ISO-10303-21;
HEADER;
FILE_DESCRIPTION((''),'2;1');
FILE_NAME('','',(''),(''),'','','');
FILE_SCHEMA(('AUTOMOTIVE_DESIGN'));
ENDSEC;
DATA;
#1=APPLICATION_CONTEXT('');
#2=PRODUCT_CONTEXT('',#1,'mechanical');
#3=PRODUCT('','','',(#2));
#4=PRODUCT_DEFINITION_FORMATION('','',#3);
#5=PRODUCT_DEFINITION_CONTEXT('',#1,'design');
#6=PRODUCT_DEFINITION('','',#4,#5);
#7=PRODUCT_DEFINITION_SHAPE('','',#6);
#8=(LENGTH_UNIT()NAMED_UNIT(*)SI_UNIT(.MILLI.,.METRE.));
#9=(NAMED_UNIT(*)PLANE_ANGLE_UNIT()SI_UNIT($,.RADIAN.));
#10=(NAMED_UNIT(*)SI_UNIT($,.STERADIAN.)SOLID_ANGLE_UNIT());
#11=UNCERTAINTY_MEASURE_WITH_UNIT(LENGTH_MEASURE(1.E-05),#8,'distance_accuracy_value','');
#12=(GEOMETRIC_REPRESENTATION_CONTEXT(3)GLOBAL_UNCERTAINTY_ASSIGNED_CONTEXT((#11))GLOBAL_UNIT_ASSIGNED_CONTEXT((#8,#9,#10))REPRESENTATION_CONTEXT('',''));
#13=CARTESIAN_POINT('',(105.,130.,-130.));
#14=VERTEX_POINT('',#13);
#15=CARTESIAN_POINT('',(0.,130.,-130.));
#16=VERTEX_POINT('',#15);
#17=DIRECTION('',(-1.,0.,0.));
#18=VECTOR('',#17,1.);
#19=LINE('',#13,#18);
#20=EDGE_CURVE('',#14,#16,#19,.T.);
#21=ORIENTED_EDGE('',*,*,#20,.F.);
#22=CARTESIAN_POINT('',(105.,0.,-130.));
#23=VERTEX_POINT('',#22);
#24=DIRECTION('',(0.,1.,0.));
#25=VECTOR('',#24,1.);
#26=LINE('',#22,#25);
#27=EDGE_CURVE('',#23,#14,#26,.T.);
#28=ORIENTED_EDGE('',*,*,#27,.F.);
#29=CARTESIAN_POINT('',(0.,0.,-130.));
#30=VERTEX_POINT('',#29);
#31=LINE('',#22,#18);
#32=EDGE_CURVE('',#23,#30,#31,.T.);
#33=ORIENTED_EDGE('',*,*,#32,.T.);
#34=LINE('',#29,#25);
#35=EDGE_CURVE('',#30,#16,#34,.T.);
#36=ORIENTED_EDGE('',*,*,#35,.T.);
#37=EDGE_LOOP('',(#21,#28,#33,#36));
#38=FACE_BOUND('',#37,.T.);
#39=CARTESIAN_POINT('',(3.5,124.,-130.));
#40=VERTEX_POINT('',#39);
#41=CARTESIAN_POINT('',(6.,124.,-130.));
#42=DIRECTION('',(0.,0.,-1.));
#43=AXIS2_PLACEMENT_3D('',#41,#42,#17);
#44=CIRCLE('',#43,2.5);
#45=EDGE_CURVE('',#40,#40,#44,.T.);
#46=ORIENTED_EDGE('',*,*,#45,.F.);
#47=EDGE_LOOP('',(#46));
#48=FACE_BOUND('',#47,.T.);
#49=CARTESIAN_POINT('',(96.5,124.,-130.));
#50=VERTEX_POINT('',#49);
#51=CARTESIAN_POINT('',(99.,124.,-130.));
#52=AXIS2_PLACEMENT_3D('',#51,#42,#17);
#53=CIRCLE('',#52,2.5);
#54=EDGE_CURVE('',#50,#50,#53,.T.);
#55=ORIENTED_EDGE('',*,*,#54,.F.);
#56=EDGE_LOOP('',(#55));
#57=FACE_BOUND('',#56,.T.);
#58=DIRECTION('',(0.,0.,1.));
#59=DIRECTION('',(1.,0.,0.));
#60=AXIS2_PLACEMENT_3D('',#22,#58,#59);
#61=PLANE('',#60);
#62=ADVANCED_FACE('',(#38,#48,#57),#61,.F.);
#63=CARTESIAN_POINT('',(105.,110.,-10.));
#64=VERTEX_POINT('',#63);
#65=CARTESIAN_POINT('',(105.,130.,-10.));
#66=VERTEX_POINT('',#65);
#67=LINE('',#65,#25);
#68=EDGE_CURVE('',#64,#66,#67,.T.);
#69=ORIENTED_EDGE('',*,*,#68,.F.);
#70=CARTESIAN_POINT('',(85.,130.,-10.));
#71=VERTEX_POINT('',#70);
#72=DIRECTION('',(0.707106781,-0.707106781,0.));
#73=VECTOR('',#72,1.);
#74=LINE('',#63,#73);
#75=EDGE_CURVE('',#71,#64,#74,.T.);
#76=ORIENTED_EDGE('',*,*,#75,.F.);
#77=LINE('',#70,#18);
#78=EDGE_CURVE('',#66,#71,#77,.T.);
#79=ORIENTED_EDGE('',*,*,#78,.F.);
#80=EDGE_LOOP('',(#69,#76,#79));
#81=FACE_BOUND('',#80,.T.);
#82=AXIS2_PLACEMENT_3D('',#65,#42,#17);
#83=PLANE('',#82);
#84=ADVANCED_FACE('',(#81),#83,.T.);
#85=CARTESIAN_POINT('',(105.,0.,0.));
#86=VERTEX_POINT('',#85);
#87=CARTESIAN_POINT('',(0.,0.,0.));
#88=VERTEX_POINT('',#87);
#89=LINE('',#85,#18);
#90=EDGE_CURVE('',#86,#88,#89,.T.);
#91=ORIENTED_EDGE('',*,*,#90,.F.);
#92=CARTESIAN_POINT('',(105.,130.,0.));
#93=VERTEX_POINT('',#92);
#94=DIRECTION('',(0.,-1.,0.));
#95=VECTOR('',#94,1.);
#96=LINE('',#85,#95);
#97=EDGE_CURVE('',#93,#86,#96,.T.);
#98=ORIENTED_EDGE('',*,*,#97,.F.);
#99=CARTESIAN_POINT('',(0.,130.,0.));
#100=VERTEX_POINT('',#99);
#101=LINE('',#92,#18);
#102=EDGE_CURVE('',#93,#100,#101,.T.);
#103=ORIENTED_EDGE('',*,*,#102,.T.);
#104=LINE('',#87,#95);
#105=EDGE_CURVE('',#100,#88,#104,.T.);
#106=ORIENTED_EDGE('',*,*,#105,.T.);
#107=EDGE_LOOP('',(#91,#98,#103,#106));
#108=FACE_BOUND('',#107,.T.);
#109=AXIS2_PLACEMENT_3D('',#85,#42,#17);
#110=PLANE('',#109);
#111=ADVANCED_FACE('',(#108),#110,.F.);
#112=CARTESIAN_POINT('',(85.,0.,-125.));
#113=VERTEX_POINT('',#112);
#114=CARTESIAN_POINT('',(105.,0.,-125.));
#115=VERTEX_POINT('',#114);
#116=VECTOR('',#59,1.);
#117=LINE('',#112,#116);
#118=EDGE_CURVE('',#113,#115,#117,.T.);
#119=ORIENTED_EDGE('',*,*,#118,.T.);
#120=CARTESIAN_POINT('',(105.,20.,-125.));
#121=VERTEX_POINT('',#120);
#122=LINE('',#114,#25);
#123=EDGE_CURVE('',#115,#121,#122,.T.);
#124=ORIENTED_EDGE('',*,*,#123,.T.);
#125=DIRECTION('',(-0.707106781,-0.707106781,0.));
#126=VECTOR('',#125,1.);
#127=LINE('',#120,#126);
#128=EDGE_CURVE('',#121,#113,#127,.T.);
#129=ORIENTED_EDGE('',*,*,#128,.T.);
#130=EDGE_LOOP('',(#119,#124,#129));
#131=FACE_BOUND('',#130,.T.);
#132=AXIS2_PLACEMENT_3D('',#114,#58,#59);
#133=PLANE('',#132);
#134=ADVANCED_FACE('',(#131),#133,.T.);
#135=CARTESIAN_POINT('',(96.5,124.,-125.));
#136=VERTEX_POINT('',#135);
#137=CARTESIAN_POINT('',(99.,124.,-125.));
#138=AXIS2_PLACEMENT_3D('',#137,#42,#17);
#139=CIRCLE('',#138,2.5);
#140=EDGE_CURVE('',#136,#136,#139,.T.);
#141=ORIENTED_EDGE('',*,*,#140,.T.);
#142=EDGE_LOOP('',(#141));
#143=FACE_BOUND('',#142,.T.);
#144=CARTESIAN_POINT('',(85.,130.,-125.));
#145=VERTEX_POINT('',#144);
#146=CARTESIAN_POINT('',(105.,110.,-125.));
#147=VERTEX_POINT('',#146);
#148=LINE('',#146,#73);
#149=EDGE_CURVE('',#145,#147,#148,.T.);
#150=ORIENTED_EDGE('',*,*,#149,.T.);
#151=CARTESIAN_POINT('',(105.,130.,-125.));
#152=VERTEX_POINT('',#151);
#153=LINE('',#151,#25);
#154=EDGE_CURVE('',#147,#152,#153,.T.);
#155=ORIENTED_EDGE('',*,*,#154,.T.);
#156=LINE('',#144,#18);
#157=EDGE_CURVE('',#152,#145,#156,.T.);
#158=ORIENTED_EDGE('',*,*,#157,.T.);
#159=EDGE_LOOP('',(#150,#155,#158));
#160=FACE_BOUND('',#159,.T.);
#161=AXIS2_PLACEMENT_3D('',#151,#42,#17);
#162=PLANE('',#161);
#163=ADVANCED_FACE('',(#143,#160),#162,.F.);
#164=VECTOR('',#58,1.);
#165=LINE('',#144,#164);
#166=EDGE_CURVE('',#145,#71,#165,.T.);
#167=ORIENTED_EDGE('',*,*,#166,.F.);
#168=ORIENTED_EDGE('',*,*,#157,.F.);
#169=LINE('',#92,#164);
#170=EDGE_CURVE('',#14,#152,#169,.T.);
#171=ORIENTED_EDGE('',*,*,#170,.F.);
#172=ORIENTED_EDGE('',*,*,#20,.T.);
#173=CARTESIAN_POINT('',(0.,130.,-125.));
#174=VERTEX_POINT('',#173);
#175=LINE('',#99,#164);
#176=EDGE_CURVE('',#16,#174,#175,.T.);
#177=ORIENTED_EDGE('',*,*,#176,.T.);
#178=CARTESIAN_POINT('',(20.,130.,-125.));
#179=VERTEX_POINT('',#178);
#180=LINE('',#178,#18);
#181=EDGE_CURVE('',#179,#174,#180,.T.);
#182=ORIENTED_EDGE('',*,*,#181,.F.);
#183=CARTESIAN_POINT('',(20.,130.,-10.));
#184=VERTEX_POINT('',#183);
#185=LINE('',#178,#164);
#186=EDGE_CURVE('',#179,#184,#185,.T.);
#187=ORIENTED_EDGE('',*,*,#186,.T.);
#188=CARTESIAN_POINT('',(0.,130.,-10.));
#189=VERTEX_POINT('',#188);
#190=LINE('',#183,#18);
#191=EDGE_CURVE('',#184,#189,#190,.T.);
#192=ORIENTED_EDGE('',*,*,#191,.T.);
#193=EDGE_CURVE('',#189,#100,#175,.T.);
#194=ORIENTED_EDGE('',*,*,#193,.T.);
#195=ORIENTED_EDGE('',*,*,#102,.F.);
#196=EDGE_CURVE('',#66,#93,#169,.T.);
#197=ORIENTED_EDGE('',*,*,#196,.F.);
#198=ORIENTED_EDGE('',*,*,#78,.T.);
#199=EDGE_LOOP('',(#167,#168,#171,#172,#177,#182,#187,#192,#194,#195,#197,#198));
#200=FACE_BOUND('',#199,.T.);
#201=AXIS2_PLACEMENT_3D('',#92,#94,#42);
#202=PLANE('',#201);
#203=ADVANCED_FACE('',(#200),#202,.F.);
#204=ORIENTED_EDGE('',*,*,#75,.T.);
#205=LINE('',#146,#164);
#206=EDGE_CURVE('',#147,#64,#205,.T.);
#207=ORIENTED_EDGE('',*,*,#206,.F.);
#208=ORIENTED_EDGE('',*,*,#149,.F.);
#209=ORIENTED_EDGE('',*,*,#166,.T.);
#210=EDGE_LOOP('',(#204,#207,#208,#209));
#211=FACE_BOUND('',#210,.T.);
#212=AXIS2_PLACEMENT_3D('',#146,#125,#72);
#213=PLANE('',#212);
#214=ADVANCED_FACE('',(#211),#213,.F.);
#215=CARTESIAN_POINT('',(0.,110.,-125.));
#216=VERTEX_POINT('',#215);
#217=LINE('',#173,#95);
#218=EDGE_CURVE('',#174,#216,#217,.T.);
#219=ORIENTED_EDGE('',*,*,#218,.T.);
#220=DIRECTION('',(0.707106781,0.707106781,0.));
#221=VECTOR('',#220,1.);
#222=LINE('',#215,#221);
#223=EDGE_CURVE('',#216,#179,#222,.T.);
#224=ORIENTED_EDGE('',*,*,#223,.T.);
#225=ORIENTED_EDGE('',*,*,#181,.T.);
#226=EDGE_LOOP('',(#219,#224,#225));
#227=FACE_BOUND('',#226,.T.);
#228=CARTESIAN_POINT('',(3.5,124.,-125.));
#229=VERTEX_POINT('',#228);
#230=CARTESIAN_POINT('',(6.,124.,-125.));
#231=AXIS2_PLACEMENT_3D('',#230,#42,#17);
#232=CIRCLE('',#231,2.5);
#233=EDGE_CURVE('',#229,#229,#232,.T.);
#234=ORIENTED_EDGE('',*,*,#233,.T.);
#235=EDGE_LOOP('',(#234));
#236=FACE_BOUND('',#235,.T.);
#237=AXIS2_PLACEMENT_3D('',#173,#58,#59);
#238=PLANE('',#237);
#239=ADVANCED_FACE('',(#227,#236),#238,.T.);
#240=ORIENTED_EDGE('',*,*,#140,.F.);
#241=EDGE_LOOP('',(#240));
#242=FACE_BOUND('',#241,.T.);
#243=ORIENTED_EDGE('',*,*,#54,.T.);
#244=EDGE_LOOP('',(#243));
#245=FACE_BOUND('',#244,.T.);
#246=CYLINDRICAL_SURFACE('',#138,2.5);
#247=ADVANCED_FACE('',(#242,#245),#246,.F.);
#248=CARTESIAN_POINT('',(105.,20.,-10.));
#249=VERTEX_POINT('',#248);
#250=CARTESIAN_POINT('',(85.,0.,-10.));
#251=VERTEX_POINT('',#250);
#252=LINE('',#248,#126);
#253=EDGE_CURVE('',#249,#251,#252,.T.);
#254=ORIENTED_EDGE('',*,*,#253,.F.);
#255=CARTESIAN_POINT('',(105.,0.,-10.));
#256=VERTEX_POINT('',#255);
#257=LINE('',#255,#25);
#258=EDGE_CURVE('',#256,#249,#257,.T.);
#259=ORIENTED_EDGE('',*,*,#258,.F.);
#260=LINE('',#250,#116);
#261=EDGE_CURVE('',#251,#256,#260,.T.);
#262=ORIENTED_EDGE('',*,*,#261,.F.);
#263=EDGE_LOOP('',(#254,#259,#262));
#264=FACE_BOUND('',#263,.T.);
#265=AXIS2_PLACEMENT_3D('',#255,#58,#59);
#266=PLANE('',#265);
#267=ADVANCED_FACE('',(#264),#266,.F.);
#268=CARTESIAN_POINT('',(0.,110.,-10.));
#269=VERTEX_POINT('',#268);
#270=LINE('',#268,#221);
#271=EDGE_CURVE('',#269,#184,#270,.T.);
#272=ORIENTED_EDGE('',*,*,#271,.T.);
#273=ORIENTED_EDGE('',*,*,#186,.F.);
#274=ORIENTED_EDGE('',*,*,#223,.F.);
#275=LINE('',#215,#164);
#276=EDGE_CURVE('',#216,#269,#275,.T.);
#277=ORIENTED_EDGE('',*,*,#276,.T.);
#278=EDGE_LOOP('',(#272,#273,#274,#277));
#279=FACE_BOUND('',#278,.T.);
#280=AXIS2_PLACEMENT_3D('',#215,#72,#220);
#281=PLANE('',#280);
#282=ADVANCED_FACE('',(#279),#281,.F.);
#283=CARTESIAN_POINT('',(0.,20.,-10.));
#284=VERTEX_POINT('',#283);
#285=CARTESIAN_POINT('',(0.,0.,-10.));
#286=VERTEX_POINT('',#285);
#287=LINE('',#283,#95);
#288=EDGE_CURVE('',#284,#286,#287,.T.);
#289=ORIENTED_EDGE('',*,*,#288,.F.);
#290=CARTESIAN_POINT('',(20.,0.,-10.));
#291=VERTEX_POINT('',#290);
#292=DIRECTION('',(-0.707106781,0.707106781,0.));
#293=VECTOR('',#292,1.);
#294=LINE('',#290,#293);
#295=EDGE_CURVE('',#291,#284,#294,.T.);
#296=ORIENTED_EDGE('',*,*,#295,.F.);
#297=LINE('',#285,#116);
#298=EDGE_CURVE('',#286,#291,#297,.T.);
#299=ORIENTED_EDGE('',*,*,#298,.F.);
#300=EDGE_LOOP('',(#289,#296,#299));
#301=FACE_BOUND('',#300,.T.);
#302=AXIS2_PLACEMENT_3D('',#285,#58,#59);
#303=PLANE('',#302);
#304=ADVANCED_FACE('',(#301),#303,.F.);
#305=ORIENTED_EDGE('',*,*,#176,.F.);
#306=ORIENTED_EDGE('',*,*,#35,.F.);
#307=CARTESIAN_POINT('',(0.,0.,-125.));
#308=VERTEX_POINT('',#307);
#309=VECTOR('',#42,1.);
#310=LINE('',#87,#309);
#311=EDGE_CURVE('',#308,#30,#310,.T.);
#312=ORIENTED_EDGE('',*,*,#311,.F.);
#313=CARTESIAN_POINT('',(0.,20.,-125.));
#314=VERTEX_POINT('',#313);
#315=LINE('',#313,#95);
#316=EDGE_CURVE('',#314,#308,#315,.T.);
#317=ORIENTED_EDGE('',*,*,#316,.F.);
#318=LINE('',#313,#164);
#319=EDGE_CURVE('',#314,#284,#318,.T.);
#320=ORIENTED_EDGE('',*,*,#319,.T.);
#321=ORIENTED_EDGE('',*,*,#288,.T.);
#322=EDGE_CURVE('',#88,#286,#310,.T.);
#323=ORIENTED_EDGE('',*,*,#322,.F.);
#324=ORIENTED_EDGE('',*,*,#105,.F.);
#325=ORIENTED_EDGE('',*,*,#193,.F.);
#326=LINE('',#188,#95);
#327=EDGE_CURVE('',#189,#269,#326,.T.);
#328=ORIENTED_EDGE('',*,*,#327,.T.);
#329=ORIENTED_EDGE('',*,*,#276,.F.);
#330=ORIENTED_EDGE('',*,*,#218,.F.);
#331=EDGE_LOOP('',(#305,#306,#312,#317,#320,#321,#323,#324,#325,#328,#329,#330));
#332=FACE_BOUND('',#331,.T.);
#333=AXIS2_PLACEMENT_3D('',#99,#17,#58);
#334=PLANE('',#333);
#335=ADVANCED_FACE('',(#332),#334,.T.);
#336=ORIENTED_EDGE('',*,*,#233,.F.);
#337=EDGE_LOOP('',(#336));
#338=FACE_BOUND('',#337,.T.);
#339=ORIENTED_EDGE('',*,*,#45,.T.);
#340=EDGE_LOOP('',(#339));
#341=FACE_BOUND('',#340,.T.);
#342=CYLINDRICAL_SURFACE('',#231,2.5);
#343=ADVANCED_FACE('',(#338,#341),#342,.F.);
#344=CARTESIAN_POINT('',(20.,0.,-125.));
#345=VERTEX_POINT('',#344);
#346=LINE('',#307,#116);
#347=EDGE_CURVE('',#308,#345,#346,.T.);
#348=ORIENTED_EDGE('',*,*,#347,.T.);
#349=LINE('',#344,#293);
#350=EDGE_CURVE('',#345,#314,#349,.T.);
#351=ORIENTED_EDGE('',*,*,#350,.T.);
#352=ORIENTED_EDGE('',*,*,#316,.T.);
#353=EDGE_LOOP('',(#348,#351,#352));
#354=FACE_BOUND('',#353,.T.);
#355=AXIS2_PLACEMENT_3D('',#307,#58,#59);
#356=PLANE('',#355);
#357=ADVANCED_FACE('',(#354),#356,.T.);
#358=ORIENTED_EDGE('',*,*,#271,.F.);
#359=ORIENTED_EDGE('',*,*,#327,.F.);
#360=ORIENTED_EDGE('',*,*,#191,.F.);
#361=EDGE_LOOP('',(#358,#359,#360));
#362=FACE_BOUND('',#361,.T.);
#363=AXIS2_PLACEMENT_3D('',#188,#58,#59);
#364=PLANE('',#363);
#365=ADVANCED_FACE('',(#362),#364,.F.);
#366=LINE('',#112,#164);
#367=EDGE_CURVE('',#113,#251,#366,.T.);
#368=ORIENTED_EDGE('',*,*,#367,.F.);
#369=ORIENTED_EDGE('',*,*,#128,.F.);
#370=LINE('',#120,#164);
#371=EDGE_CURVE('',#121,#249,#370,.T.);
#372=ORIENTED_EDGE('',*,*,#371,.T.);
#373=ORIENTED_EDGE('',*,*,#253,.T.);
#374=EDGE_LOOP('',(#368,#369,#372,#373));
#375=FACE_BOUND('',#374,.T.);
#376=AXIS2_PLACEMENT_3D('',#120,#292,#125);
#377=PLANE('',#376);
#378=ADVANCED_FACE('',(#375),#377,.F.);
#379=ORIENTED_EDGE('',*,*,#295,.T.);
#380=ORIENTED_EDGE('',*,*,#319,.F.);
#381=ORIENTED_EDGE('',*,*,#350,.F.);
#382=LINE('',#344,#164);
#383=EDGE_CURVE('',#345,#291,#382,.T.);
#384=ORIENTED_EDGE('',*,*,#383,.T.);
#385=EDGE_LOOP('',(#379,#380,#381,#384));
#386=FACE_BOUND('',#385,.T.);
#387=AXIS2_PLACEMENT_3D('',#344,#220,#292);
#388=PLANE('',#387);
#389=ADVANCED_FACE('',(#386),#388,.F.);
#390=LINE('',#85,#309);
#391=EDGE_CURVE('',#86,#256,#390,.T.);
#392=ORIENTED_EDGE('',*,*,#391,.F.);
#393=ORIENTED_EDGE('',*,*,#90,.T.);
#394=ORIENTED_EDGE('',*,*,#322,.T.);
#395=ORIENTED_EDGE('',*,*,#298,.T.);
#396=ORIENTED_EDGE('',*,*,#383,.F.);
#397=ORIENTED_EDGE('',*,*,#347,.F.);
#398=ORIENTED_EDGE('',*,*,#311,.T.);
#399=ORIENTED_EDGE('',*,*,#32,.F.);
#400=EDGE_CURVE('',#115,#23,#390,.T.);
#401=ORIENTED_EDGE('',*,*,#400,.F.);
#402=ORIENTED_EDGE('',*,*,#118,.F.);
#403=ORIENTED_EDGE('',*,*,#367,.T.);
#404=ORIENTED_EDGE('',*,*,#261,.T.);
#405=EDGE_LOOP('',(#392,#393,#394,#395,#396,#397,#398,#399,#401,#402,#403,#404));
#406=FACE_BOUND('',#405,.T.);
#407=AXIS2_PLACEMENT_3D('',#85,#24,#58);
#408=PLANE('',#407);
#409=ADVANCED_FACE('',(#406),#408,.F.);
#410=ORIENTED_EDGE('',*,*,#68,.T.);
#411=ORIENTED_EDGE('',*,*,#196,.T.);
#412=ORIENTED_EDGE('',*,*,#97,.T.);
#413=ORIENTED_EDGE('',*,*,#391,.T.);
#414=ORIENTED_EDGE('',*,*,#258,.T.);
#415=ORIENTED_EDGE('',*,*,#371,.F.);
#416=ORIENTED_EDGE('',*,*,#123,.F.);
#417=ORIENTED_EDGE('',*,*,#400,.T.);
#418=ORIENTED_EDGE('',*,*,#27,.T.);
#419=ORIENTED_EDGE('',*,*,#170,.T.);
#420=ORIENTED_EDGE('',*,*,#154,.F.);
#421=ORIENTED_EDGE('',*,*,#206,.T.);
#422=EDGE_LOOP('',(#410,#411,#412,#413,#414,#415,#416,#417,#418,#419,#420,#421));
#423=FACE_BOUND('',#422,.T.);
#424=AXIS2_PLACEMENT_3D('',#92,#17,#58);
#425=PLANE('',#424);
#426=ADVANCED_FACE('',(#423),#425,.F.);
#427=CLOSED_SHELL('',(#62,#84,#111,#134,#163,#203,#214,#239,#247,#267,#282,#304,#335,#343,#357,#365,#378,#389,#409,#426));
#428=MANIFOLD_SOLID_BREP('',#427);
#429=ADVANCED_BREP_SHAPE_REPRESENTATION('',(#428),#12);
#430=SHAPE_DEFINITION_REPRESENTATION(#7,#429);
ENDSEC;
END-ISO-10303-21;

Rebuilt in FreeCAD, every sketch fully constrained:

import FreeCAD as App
import Part
import Sketcher
Q = App.Units.Quantity

doc = App.newDocument("Part")
body = doc.addObject("PartDesign::Body", "Body")

# Sketch on YZ plane
sketch1 = body.newObject("Sketcher::SketchObject", "Sketch")
sketch1.AttachmentSupport = (doc.getObject("YZ_Plane"), [""])
sketch1.MapMode = "FlatFace"
sketch1.addGeometry([
    Part.LineSegment(App.Vector(130, 0, 0), App.Vector(0, 0, 0)),
    Part.LineSegment(App.Vector(0, 0, 0), App.Vector(0, -130, 0)),
    Part.LineSegment(App.Vector(0, -130, 0), App.Vector(130, -130, 0)),
    Part.LineSegment(App.Vector(130, -130, 0), App.Vector(130, 0, 0)),
], False)
sketch1.addConstraint([
    Sketcher.Constraint("Coincident", 0, 2, 1, 1),
    Sketcher.Constraint("Coincident", 1, 2, 2, 1),
    Sketcher.Constraint("Coincident", 2, 2, 3, 1),
    Sketcher.Constraint("Coincident", 3, 2, 0, 1),
    Sketcher.Constraint("Horizontal", 0),
    Sketcher.Constraint("Vertical", 1),
    Sketcher.Constraint("Horizontal", 2),
    Sketcher.Constraint("Vertical", 3),
    Sketcher.Constraint("Coincident", 0, 2, -1, 1),
    Sketcher.Constraint("Equal", 2, 1),
    Sketcher.Constraint("DistanceX", 0, 2, 0, 1, Q("130 mm")),
])
pad1 = body.newObject("PartDesign::Pad", "Pad")
pad1.Profile = sketch1
pad1.Length = 105

# Sketch on XY plane
sketch2 = body.newObject("Sketcher::SketchObject", "Sketch001")
sketch2.AttachmentSupport = (doc.getObject("XY_Plane"), [""])
sketch2.MapMode = "FlatFace"
sketch2.AttachmentOffset = App.Placement(App.Vector(0, 0, -10), App.Rotation())
sketch2.addGeometry([
    Part.LineSegment(App.Vector(0, 0, 0), App.Vector(20, 0, 0)),  # 0
    Part.LineSegment(App.Vector(20, 0, 0), App.Vector(0, 20, 0)),  # 1
    Part.LineSegment(App.Vector(0, 20, 0), App.Vector(0, 0, 0)),  # 2
    Part.LineSegment(App.Vector(0, 130, 0), App.Vector(0, 110, 0)),  # 3
    Part.LineSegment(App.Vector(0, 110, 0), App.Vector(20, 130, 0)),  # 4
    Part.LineSegment(App.Vector(20, 130, 0), App.Vector(0, 130, 0)),  # 5
    Part.LineSegment(App.Vector(105, 110, 0), App.Vector(105, 130, 0)),  # 6
    Part.LineSegment(App.Vector(105, 130, 0), App.Vector(85, 130, 0)),  # 7
    Part.LineSegment(App.Vector(85, 130, 0), App.Vector(105, 110, 0)),  # 8
    Part.LineSegment(App.Vector(105, 0, 0), App.Vector(105, 20, 0)),  # 9
    Part.LineSegment(App.Vector(105, 20, 0), App.Vector(85, 0, 0)),  # 10
    Part.LineSegment(App.Vector(85, 0, 0), App.Vector(105, 0, 0)),  # 11
], False)
sketch2.addConstraint([
    Sketcher.Constraint("Coincident", 0, 2, 1, 1),
    Sketcher.Constraint("Coincident", 1, 2, 2, 1),
    Sketcher.Constraint("Coincident", 2, 2, 0, 1),
    Sketcher.Constraint("Coincident", 3, 2, 4, 1),
    Sketcher.Constraint("Coincident", 4, 2, 5, 1),
    Sketcher.Constraint("Coincident", 5, 2, 3, 1),
    Sketcher.Constraint("Coincident", 6, 2, 7, 1),
    Sketcher.Constraint("Coincident", 7, 2, 8, 1),
    Sketcher.Constraint("Coincident", 8, 2, 6, 1),
    Sketcher.Constraint("Coincident", 9, 2, 10, 1),
    Sketcher.Constraint("Coincident", 10, 2, 11, 1),
    Sketcher.Constraint("Coincident", 11, 2, 9, 1),
    Sketcher.Constraint("Horizontal", 0),
    Sketcher.Constraint("Vertical", 2),
    Sketcher.Constraint("Vertical", 3),
    Sketcher.Constraint("Horizontal", 5),
    Sketcher.Constraint("Vertical", 6),
    Sketcher.Constraint("Horizontal", 7),
    Sketcher.Constraint("Vertical", 9),
    Sketcher.Constraint("Horizontal", 11),
    Sketcher.Constraint("Coincident", 2, 2, -1, 1),
    Sketcher.Constraint("PointOnObject", 3, 2, -2),
    Sketcher.Constraint("PointOnObject", 10, 2, -1),
    Sketcher.Constraint("Perpendicular", 1, 4),
    Sketcher.Constraint("Perpendicular", 4, 8),
    Sketcher.Constraint("Perpendicular", 8, 10),
    Sketcher.Constraint("Horizontal", 5, 2, 6, 2),
    Sketcher.Constraint("Horizontal", 3, 2, 8, 2),
    Sketcher.Constraint("Horizontal", 1, 2, 9, 2),
    Sketcher.Constraint("Vertical", 0, 2, 4, 2),
    Sketcher.Constraint("Vertical", 8, 2, 9, 2),
    Sketcher.Constraint("Vertical", 7, 2, 10, 2),
    Sketcher.Constraint("DistanceX", 0, 1, 0, 2, Q("20 mm")),
    Sketcher.Constraint("DistanceY", -1, 1, 3, 2, Q("110 mm")),
    Sketcher.Constraint("DistanceX", -1, 1, 6, 2, Q("105 mm")),
])
pocket1 = body.newObject("PartDesign::Pocket", "Pocket")
pocket1.Profile = sketch2
pocket1.Length = 115

# Sketch on XY plane
sketch3 = body.newObject("Sketcher::SketchObject", "Sketch002")
sketch3.AttachmentSupport = (doc.getObject("XY_Plane"), [""])
sketch3.MapMode = "FlatFace"
sketch3.AttachmentOffset = App.Placement(App.Vector(0, 0, -130), App.Rotation())
sketch3.addGeometry([
    Part.Circle(App.Vector(6, 124, 0), App.Vector(0, 0, 1), 2.5),
    Part.Circle(App.Vector(99, 124, 0), App.Vector(0, 0, 1), 2.5),
], False)
sketch3.addConstraint([
    Sketcher.Constraint("Equal", 0, 1),
    Sketcher.Constraint("Horizontal", 0, 3, 1, 3),
    Sketcher.Constraint("Diameter", 0, Q("5 mm")),
    Sketcher.Constraint("DistanceX", -1, 1, 0, 3, Q("6 mm")),
    Sketcher.Constraint("DistanceY", -1, 1, 0, 3, Q("124 mm")),
    Sketcher.Constraint("DistanceX", -1, 1, 1, 3, Q("99 mm")),
])
pocket2 = body.newObject("PartDesign::Pocket", "Pocket001")
pocket2.Profile = sketch3
pocket2.Length = 5
pocket2.Reversed = True

doc.recompute()
